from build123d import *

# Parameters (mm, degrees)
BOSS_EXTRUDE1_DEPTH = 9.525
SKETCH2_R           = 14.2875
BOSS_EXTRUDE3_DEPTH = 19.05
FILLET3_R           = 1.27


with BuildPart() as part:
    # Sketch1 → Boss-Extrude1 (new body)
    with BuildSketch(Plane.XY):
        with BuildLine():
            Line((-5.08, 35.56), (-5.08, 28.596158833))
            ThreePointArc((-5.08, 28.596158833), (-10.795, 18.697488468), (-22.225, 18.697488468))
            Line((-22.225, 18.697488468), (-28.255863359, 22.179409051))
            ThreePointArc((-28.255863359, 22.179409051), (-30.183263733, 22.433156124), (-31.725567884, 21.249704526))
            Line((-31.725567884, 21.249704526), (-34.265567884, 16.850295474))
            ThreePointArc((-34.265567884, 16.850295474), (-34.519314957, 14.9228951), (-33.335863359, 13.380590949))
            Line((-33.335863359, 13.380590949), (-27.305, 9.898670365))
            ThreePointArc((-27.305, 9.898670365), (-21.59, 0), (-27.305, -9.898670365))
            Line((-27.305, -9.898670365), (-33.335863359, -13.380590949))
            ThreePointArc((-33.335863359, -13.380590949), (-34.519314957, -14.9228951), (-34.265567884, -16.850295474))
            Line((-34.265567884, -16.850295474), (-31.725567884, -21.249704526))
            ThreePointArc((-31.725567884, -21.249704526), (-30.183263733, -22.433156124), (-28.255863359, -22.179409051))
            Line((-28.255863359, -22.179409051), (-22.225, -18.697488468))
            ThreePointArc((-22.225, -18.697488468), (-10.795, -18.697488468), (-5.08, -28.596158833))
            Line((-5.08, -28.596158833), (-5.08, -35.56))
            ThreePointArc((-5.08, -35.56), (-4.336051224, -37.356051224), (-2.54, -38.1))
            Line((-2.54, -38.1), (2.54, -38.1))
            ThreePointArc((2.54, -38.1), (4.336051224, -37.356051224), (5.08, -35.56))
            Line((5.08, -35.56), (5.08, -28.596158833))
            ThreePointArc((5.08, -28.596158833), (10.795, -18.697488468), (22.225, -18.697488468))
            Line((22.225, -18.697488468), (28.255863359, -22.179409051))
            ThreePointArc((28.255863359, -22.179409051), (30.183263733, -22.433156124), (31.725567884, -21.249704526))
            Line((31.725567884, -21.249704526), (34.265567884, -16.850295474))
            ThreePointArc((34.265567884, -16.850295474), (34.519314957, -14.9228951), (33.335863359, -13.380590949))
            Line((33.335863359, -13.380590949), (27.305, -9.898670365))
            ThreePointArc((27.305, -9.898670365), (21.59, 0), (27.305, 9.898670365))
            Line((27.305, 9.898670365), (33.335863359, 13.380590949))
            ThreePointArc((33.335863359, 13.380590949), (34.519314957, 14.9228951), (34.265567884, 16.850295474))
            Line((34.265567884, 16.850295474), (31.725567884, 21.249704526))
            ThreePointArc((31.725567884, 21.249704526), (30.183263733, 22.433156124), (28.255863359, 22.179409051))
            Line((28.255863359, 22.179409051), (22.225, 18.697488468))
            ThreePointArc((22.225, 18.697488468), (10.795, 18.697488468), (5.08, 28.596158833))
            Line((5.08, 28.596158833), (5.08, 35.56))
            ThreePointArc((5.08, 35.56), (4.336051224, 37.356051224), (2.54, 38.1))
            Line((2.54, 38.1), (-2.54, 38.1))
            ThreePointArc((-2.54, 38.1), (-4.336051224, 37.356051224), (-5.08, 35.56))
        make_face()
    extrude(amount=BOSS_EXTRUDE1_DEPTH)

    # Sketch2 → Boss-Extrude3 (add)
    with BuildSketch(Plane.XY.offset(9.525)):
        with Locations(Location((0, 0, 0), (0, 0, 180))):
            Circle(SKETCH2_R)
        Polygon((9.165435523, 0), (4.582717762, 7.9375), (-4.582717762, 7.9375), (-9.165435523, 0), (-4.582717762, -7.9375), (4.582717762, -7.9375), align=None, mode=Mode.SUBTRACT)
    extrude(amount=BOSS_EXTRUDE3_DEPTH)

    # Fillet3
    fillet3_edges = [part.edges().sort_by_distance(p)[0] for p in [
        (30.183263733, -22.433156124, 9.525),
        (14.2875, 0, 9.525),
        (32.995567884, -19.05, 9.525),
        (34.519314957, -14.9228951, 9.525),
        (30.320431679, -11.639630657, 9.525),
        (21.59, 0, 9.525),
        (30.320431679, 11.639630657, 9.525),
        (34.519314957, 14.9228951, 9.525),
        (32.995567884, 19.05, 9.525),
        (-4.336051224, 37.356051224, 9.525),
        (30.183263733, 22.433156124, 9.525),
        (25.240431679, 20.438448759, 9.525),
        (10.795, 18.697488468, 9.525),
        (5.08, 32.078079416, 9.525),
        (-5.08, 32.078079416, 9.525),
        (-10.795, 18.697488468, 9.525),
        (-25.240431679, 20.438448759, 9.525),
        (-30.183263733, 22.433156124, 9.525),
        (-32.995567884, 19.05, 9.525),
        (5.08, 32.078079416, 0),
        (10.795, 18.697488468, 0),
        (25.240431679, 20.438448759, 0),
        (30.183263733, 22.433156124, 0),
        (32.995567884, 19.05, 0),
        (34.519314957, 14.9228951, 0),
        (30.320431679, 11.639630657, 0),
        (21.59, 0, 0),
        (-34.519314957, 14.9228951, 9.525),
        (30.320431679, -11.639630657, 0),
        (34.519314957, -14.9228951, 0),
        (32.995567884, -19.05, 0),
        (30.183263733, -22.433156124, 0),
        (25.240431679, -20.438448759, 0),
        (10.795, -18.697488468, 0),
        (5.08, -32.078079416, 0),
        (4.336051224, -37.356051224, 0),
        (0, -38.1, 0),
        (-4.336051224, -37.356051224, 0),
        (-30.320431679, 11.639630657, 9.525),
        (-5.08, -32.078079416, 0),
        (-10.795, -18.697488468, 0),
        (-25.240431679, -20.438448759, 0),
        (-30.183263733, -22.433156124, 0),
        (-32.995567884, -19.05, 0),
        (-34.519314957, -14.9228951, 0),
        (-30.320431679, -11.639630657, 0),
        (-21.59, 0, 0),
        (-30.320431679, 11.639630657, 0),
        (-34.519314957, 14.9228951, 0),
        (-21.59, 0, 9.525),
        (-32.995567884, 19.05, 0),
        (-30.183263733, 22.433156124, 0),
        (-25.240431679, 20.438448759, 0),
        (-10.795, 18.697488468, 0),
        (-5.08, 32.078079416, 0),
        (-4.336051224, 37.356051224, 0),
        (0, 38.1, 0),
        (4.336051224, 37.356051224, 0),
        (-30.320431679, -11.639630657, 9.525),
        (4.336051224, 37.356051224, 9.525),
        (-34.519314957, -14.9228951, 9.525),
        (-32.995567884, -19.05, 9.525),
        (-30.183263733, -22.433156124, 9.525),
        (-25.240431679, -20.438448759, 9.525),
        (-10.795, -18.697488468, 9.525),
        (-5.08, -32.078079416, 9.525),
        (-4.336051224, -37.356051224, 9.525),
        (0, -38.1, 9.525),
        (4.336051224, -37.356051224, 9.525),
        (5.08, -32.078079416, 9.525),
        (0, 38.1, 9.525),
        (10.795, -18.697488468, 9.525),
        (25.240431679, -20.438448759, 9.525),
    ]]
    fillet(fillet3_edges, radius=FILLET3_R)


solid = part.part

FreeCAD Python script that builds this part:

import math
import FreeCAD as App
import Part
import Sketcher
from FreeCAD import Vector
Q = App.Units.Quantity


def edges_at(feature, points):
    """Names of the edges that pass closest to the given points."""
    edges = feature.Shape.Edges
    near = lambda p: min(range(len(edges)), key=lambda i: edges[i].distToShape(Part.Vertex(*p))[0])
    return sorted({f"Edge{near(p) + 1}" for p in points})

doc = App.newDocument("Part")
params = doc.addObject("Spreadsheet::Sheet", "Params")
for row, (alias, value) in enumerate([
    ("sketch1_radius", "0.1 in"),
    ("sketch1_radius2", "0.45 in"),
    ("sketch1_width", "0.2 in"),
    ("sketch1_length", "0.2 in"),
    ("pad1_length", "0.375 in"),
    ("sketch2_diameter", "1.125 in"),
    ("pad2_length", "0.75 in"),
    ("fillet_radius", "0.05 in"),
], start=1):
    params.set(f"A{row}", alias)
    params.set(f"B{row}", "=" + value)
    params.setAlias(f"B{row}", alias)

body = doc.addObject("PartDesign::Body", "Body")

sketch1 = doc.addObject("Sketcher::SketchObject", "Sketch")
body.addObject(sketch1)
sketch1.AttachmentSupport = (doc.XY_Plane, [""])
sketch1.MapMode = "FlatFace"
sketch1.addGeometry(Part.LineSegment(Vector(-5.1, 35.6, 0), Vector(-5.1, 28.6, 0)), False)
sketch1.addGeometry(Part.ArcOfCircle(Part.Circle(Vector(-16.5, 28.6, 0), Vector(0, 0, 1), 11.4), math.radians(-120), math.radians(0)), False)
sketch1.addGeometry(Part.LineSegment(Vector(-22.2, 18.7, 0), Vector(-28.3, 22.2, 0)), False)
sketch1.addGeometry(Part.ArcOfCircle(Part.Circle(Vector(-29.5, 20, 0), Vector(0, 0, 1), 2.5), math.radians(60), math.radians(150)), False)
sketch1.addGeometry(Part.LineSegment(Vector(-31.7, 21.2, 0), Vector(-34.3, 16.9, 0)), False)
sketch1.addGeometry(Part.ArcOfCircle(Part.Circle(Vector(-32.1, 15.6, 0), Vector(0, 0, 1), 2.5), math.radians(150), math.radians(240)), False)
sketch1.addGeometry(Part.LineSegment(Vector(-33.3, 13.4, 0), Vector(-27.3, 9.9, 0)), False)
sketch1.addGeometry(Part.ArcOfCircle(Part.Circle(Vector(-33, 0, 0), Vector(0, 0, 1), 11.4), math.radians(-60), math.radians(60)), False)
sketch1.addGeometry(Part.LineSegment(Vector(-27.3, -9.9, 0), Vector(-33.3, -13.4, 0)), False)
sketch1.addGeometry(Part.ArcOfCircle(Part.Circle(Vector(-32.1, -15.6, 0), Vector(0, 0, 1), 2.5), math.radians(120), math.radians(210)), False)
sketch1.addGeometry(Part.LineSegment(Vector(-34.3, -16.9, 0), Vector(-31.7, -21.2, 0)), False)
sketch1.addGeometry(Part.ArcOfCircle(Part.Circle(Vector(-29.5, -20, 0), Vector(0, 0, 1), 2.5), math.radians(-150), math.radians(-60)), False)
sketch1.addGeometry(Part.LineSegment(Vector(-28.3, -22.2, 0), Vector(-22.2, -18.7, 0)), False)
sketch1.addGeometry(Part.ArcOfCircle(Part.Circle(Vector(-16.5, -28.6, 0), Vector(0, 0, 1), 11.4), math.radians(0), math.radians(120)), False)
sketch1.addGeometry(Part.LineSegment(Vector(-5.1, -28.6, 0), Vector(-5.1, -35.6, 0)), False)
sketch1.addGeometry(Part.ArcOfCircle(Part.Circle(Vector(-2.5, -35.6, 0), Vector(0, 0, 1), 2.5), math.radians(-180), math.radians(-90)), False)
sketch1.addGeometry(Part.LineSegment(Vector(-2.5, -38.1, 0), Vector(2.5, -38.1, 0)), False)
sketch1.addGeometry(Part.ArcOfCircle(Part.Circle(Vector(2.5, -35.6, 0), Vector(0, 0, 1), 2.5), math.radians(-90), math.radians(0)), False)
sketch1.addGeometry(Part.LineSegment(Vector(5.1, -35.6, 0), Vector(5.1, -28.6, 0)), False)
sketch1.addGeometry(Part.ArcOfCircle(Part.Circle(Vector(16.5, -28.6, 0), Vector(0, 0, 1), 11.4), math.radians(60), math.radians(180)), False)
sketch1.addGeometry(Part.LineSegment(Vector(22.2, -18.7, 0), Vector(28.3, -22.2, 0)), False)
sketch1.addGeometry(Part.ArcOfCircle(Part.Circle(Vector(29.5, -20, 0), Vector(0, 0, 1), 2.5), math.radians(-120), math.radians(-30)), False)
sketch1.addGeometry(Part.LineSegment(Vector(31.7, -21.2, 0), Vector(34.3, -16.9, 0)), False)
sketch1.addGeometry(Part.ArcOfCircle(Part.Circle(Vector(32.1, -15.6, 0), Vector(0, 0, 1), 2.5), math.radians(-30), math.radians(60)), False)
sketch1.addGeometry(Part.LineSegment(Vector(33.3, -13.4, 0), Vector(27.3, -9.9, 0)), False)
sketch1.addGeometry(Part.ArcOfCircle(Part.Circle(Vector(33, 0, 0), Vector(0, 0, 1), 11.4), math.radians(120), math.radians(240)), False)
sketch1.addGeometry(Part.LineSegment(Vector(27.3, 9.9, 0), Vector(33.3, 13.4, 0)), False)
sketch1.addGeometry(Part.ArcOfCircle(Part.Circle(Vector(32.1, 15.6, 0), Vector(0, 0, 1), 2.5), math.radians(-60), math.radians(30)), False)
sketch1.addGeometry(Part.LineSegment(Vector(34.3, 16.9, 0), Vector(31.7, 21.2, 0)), False)
sketch1.addGeometry(Part.ArcOfCircle(Part.Circle(Vector(29.5, 20, 0), Vector(0, 0, 1), 2.5), math.radians(30), math.radians(120)), False)
sketch1.addGeometry(Part.LineSegment(Vector(28.3, 22.2, 0), Vector(22.2, 18.7, 0)), False)
sketch1.addGeometry(Part.ArcOfCircle(Part.Circle(Vector(16.5, 28.6, 0), Vector(0, 0, 1), 11.4), math.radians(180), math.radians(300)), False)
sketch1.addGeometry(Part.LineSegment(Vector(5.1, 28.6, 0), Vector(5.1, 35.6, 0)), False)
sketch1.addGeometry(Part.ArcOfCircle(Part.Circle(Vector(2.5, 35.6, 0), Vector(0, 0, 1), 2.5), math.radians(0), math.radians(90)), False)
sketch1.addGeometry(Part.LineSegment(Vector(2.5, 38.1, 0), Vector(-2.5, 38.1, 0)), False)
sketch1.addGeometry(Part.ArcOfCircle(Part.Circle(Vector(-2.5, 35.6, 0), Vector(0, 0, 1), 2.5), math.radians(90), math.radians(180)), False)
sketch1.addConstraint(Sketcher.Constraint("Tangent", 0, 2, 1, 2))
sketch1.addConstraint(Sketcher.Constraint("Tangent", 1, 1, 2, 1))
sketch1.addConstraint(Sketcher.Constraint("Tangent", 2, 2, 3, 1))
sketch1.addConstraint(Sketcher.Constraint("Tangent", 3, 2, 4, 1))
sketch1.addConstraint(Sketcher.Constraint("Tangent", 4, 2, 5, 1))
sketch1.addConstraint(Sketcher.Constraint("Tangent", 5, 2, 6, 1))
sketch1.addConstraint(Sketcher.Constraint("Tangent", 6, 2, 7, 2))
sketch1.addConstraint(Sketcher.Constraint("Tangent", 7, 1, 8, 1))
sketch1.addConstraint(Sketcher.Constraint("Tangent", 8, 2, 9, 1))
sketch1.addConstraint(Sketcher.Constraint("Tangent", 9, 2, 10, 1))
sketch1.addConstraint(Sketcher.Constraint("Tangent", 10, 2, 11, 1))
sketch1.addConstraint(Sketcher.Constraint("Tangent", 11, 2, 12, 1))
sketch1.addConstraint(Sketcher.Constraint("Tangent", 12, 2, 13, 2))
sketch1.addConstraint(Sketcher.Constraint("Tangent", 13, 1, 14, 1))
sketch1.addConstraint(Sketcher.Constraint("Tangent", 14, 2, 15, 1))
sketch1.addConstraint(Sketcher.Constraint("Tangent", 15, 2, 16, 1))
sketch1.addConstraint(Sketcher.Constraint("Tangent", 16, 2, 17, 1))
sketch1.addConstraint(Sketcher.Constraint("Tangent", 17, 2, 18, 1))
sketch1.addConstraint(Sketcher.Constraint("Tangent", 18, 2, 19, 2))
sketch1.addConstraint(Sketcher.Constraint("Tangent", 19, 1, 20, 1))
sketch1.addConstraint(Sketcher.Constraint("Tangent", 20, 2, 21, 1))
sketch1.addConstraint(Sketcher.Constraint("Tangent", 21, 2, 22, 1))
sketch1.addConstraint(Sketcher.Constraint("Tangent", 22, 2, 23, 1))
sketch1.addConstraint(Sketcher.Constraint("Tangent", 23, 2, 24, 1))
sketch1.addConstraint(Sketcher.Constraint("Tangent", 24, 2, 25, 2))
sketch1.addConstraint(Sketcher.Constraint("Tangent", 25, 1, 26, 1))
sketch1.addConstraint(Sketcher.Constraint("Tangent", 26, 2, 27, 1))
sketch1.addConstraint(Sketcher.Constraint("Tangent", 27, 2, 28, 1))
sketch1.addConstraint(Sketcher.Constraint("Tangent", 28, 2, 29, 1))
sketch1.addConstraint(Sketcher.Constraint("Tangent", 29, 2, 30, 1))
sketch1.addConstraint(Sketcher.Constraint("Tangent", 30, 2, 31, 2))
sketch1.addConstraint(Sketcher.Constraint("Tangent", 31, 1, 32, 1))
sketch1.addConstraint(Sketcher.Constraint("Tangent", 32, 2, 33, 1))
sketch1.addConstraint(Sketcher.Constraint("Tangent", 33, 2, 34, 1))
sketch1.addConstraint(Sketcher.Constraint("Tangent", 34, 2, 35, 1))
sketch1.addConstraint(Sketcher.Constraint("Tangent", 35, 2, 0, 1))
sketch1.addConstraint(Sketcher.Constraint("Vertical", 0))
sketch1.addConstraint(Sketcher.Constraint("Vertical", 14))
sketch1.addConstraint(Sketcher.Constraint("Horizontal", 16))
sketch1.addConstraint(Sketcher.Constraint("Vertical", 18))
sketch1.addConstraint(Sketcher.Constraint("Vertical", 32))
sketch1.addConstraint(Sketcher.Constraint("Horizontal", 34))
sketch1.addConstraint(Sketcher.Constraint("Equal", 3, 5))
sketch1.addConstraint(Sketcher.Constraint("Equal", 1, 7))
sketch1.addConstraint(Sketcher.Constraint("Equal", 5, 9))
sketch1.addConstraint(Sketcher.Constraint("Equal", 9, 11))
sketch1.addConstraint(Sketcher.Constraint("Equal", 7, 13))
sketch1.addConstraint(Sketcher.Constraint("Equal", 11, 15))
sketch1.addConstraint(Sketcher.Constraint("Equal", 15, 17))
sketch1.addConstraint(Sketcher.Constraint("Equal", 13, 19))
sketch1.addConstraint(Sketcher.Constraint("Equal", 17, 21))
sketch1.addConstraint(Sketcher.Constraint("Equal", 21, 23))
sketch1.addConstraint(Sketcher.Constraint("Equal", 19, 25))
sketch1.addConstraint(Sketcher.Constraint("Equal", 23, 27))
sketch1.addConstraint(Sketcher.Constraint("Equal", 27, 29))
sketch1.addConstraint(Sketcher.Constraint("Equal", 25, 31))
sketch1.addConstraint(Sketcher.Constraint("Equal", 29, 33))
sketch1.addConstraint(Sketcher.Constraint("Equal", 33, 35))
sketch1.addConstraint(Sketcher.Constraint("Symmetric", 1, 3, 19, 3, -1, 1))
sketch1.addConstraint(Sketcher.Constraint("Symmetric", 3, 3, 21, 3, -1, 1))
sketch1.addConstraint(Sketcher.Constraint("Symmetric", 5, 3, 23, 3, -1, 1))
sketch1.addConstraint(Sketcher.Constraint("Symmetric", 7, 3, 25, 3, -1, 1))
sketch1.addConstraint(Sketcher.Constraint("Symmetric", 9, 3, 27, 3, -1, 1))
sketch1.addConstraint(Sketcher.Constraint("Symmetric", 11, 3, 29, 3, -1, 1))
sketch1.addConstraint(Sketcher.Constraint("Symmetric", 13, 3, 31, 3, -1, 1))
sketch1.addConstraint(Sketcher.Constraint("Symmetric", 13, 3, 19, 3, -2))
sketch1.addConstraint(Sketcher.Constraint("Symmetric", 11, 3, 21, 3, -2))
sketch1.addConstraint(Sketcher.Constraint("Symmetric", 9, 3, 23, 3, -2))
sketch1.addConstraint(Sketcher.Constraint("PointOnObject", 7, 3, -1))
sketch1.addConstraint(Sketcher.Constraint("Perpendicular", 2, 4))
sketch1.addConstraint(Sketcher.Constraint("Perpendicular", 4, 6))
sketch1.addConstraint(Sketcher.Constraint("Equal", 0, 14))
sketch1.addConstraint(Sketcher.Constraint("Equal", 2, 6))
sketch1.addConstraint(Sketcher.Constraint("Radius", 3, Q("0.1 in")))
sketch1.addConstraint(Sketcher.Constraint("Radius", 1, Q("0.45 in")))
sketch1.addConstraint(Sketcher.Constraint("DistanceX", 16, 1, 16, 2, Q("0.2 in")))
sketch1.addConstraint(Sketcher.Constraint("Angle", 2, Q("150 deg")))
sketch1.addConstraint(Sketcher.Constraint("Distance", 4, Q("0.2 in")))
sketch1.addConstraint(Sketcher.Constraint("DistanceY", 15, 3, -1, 1, Q("1.4 in")))
sketch1.addConstraint(Sketcher.Constraint("DistanceY", 9, 3, 3, 3, Q("1.4 in")))
sketch1.setExpression("Constraints[73]", "Params.sketch1_radius")
sketch1.setExpression("Constraints[74]", "Params.sketch1_radius2")
sketch1.setExpression("Constraints[75]", "Params.sketch1_width")
sketch1.setExpression("Constraints[77]", "Params.sketch1_length")
pad1 = doc.addObject("PartDesign::Pad", "Pad")
body.addObject(pad1)
pad1.Profile = sketch1
pad1.setExpression("Length", "Params.pad1_length")

sketch2 = doc.addObject("Sketcher::SketchObject", "Sketch001")
body.addObject(sketch2)
sketch2.AttachmentSupport = (doc.XY_Plane, [""])
sketch2.MapMode = "FlatFace"
sketch2.AttachmentOffset = App.Placement(Vector(0, 0, 0.375 * 25.4), App.Rotation())
sketch2.addGeometry(Part.Circle(Vector(0, 0, 0), Vector(0, 0, 1), 14), False)
sketch2.addGeometry(Part.LineSegment(Vector(5, 8, 0), Vector(9, 0, 0)), False)
sketch2.addGeometry(Part.LineSegment(Vector(9, 0, 0), Vector(5, -8, 0)), False)
sketch2.addGeometry(Part.LineSegment(Vector(5, -8, 0), Vector(-5, -8, 0)), False)
sketch2.addGeometry(Part.LineSegment(Vector(-5, -8, 0), Vector(-9, 0, 0)), False)
sketch2.addGeometry(Part.LineSegment(Vector(-9, 0, 0), Vector(-5, 8, 0)), False)
sketch2.addGeometry(Part.LineSegment(Vector(-5, 8, 0), Vector(5, 8, 0)), False)
sketch2.addConstraint(Sketcher.Constraint("Coincident", 1, 2, 2, 1))
sketch2.addConstraint(Sketcher.Constraint("Coincident", 2, 2, 3, 1))
sketch2.addConstraint(Sketcher.Constraint("Coincident", 3, 2, 4, 1))
sketch2.addConstraint(Sketcher.Constraint("Coincident", 4, 2, 5, 1))
sketch2.addConstraint(Sketcher.Constraint("Coincident", 5, 2, 6, 1))
sketch2.addConstraint(Sketcher.Constraint("Coincident", 6, 2, 1, 1))
sketch2.addConstraint(Sketcher.Constraint("Horizontal", 3))
sketch2.addConstraint(Sketcher.Constraint("Horizontal", 6))
sketch2.addConstraint(Sketcher.Constraint("Coincident", 0, 3, -1, 1))
sketch2.addConstraint(Sketcher.Constraint("Symmetric", 1, 2, 4, 2, -1, 1))
sketch2.addConstraint(Sketcher.Constraint("Symmetric", 2, 2, 5, 2, -1, 1))
sketch2.addConstraint(Sketcher.Constraint("PointOnObject", 1, 2, -1))
sketch2.addConstraint(Sketcher.Constraint("Parallel", 1, 4))
sketch2.addConstraint(Sketcher.Constraint("Vertical", 3, 2, 5, 2))
sketch2.addConstraint(Sketcher.Constraint("Diameter", 0, Q("1.125 in")))
sketch2.addConstraint(Sketcher.Constraint("Angle", 1, Q("-60 deg")))
sketch2.addConstraint(Sketcher.Constraint("DistanceY", 2, 2, -1, 1, Q("0.3125 in")))
sketch2.addConstraint(Sketcher.Constraint("DistanceX", 3, 2, 3, 1, Q("9.165436 mm")))
sketch2.setExpression("Constraints[14]", "Params.sketch2_diameter")
pad2 = doc.addObject("PartDesign::Pad", "Pad001")
body.addObject(pad2)
pad2.Profile = sketch2
pad2.setExpression("Length", "Params.pad2_length")
doc.recompute()

fillet = doc.addObject("PartDesign::Fillet", "Fillet")
body.addObject(fillet)
fillet.Base = (pad2, edges_at(pad2, [
    (30.183, -22.433, 9.525),
    (14.287, 0, 9.525),
    (32.996, -19.05, 9.525),
    (34.519, -14.923, 9.525),
    (30.32, -11.64, 9.525),
    (21.59, 0, 9.525),
    (30.32, 11.64, 9.525),
    (34.519, 14.923, 9.525),
    (32.996, 19.05, 9.525),
    (-4.336, 37.356, 9.525),
    (30.183, 22.433, 9.525),
    (25.24, 20.438, 9.525),
    (10.795, 18.697, 9.525),
    (5.08, 32.078, 9.525),
    (-5.08, 32.078, 9.525),
    (-10.795, 18.697, 9.525),
    (-25.24, 20.438, 9.525),
    (-30.183, 22.433, 9.525),
    (-32.996, 19.05, 9.525),
    (5.08, 32.078, 0),
    (10.795, 18.697, 0),
    (25.24, 20.438, 0),
    (30.183, 22.433, 0),
    (32.996, 19.05, 0),
    (34.519, 14.923, 0),
    (30.32, 11.64, 0),
    (21.59, 0, 0),
    (-34.519, 14.923, 9.525),
    (30.32, -11.64, 0),
    (34.519, -14.923, 0),
    (32.996, -19.05, 0),
    (30.183, -22.433, 0),
    (25.24, -20.438, 0),
    (10.795, -18.697, 0),
    (5.08, -32.078, 0),
    (4.336, -37.356, 0),
    (0, -38.1, 0),
    (-4.336, -37.356, 0),
    (-30.32, 11.64, 9.525),
    (-5.08, -32.078, 0),
    (-10.795, -18.697, 0),
    (-25.24, -20.438, 0),
    (-30.183, -22.433, 0),
    (-32.996, -19.05, 0),
    (-34.519, -14.923, 0),
    (-30.32, -11.64, 0),
    (-21.59, 0, 0),
    (-30.32, 11.64, 0),
    (-34.519, 14.923, 0),
    (-21.59, 0, 9.525),
    (-32.996, 19.05, 0),
    (-30.183, 22.433, 0),
    (-25.24, 20.438, 0),
    (-10.795, 18.697, 0),
    (-5.08, 32.078, 0),
    (-4.336, 37.356, 0),
    (0, 38.1, 0),
    (4.336, 37.356, 0),
    (-30.32, -11.64, 9.525),
    (4.336, 37.356, 9.525),
    (-34.519, -14.923, 9.525),
    (-32.996, -19.05, 9.525),
    (-30.183, -22.433, 9.525),
    (-25.24, -20.438, 9.525),
    (-10.795, -18.697, 9.525),
    (-5.08, -32.078, 9.525),
    (-4.336, -37.356, 9.525),
    (0, -38.1, 9.525),
    (4.336, -37.356, 9.525),
    (5.08, -32.078, 9.525),
    (0, 38.1, 9.525),
    (10.795, -18.697, 9.525),
    (25.24, -20.438, 9.525),
]))
fillet.setExpression("Radius", "Params.fillet_radius")

doc.recompute()
